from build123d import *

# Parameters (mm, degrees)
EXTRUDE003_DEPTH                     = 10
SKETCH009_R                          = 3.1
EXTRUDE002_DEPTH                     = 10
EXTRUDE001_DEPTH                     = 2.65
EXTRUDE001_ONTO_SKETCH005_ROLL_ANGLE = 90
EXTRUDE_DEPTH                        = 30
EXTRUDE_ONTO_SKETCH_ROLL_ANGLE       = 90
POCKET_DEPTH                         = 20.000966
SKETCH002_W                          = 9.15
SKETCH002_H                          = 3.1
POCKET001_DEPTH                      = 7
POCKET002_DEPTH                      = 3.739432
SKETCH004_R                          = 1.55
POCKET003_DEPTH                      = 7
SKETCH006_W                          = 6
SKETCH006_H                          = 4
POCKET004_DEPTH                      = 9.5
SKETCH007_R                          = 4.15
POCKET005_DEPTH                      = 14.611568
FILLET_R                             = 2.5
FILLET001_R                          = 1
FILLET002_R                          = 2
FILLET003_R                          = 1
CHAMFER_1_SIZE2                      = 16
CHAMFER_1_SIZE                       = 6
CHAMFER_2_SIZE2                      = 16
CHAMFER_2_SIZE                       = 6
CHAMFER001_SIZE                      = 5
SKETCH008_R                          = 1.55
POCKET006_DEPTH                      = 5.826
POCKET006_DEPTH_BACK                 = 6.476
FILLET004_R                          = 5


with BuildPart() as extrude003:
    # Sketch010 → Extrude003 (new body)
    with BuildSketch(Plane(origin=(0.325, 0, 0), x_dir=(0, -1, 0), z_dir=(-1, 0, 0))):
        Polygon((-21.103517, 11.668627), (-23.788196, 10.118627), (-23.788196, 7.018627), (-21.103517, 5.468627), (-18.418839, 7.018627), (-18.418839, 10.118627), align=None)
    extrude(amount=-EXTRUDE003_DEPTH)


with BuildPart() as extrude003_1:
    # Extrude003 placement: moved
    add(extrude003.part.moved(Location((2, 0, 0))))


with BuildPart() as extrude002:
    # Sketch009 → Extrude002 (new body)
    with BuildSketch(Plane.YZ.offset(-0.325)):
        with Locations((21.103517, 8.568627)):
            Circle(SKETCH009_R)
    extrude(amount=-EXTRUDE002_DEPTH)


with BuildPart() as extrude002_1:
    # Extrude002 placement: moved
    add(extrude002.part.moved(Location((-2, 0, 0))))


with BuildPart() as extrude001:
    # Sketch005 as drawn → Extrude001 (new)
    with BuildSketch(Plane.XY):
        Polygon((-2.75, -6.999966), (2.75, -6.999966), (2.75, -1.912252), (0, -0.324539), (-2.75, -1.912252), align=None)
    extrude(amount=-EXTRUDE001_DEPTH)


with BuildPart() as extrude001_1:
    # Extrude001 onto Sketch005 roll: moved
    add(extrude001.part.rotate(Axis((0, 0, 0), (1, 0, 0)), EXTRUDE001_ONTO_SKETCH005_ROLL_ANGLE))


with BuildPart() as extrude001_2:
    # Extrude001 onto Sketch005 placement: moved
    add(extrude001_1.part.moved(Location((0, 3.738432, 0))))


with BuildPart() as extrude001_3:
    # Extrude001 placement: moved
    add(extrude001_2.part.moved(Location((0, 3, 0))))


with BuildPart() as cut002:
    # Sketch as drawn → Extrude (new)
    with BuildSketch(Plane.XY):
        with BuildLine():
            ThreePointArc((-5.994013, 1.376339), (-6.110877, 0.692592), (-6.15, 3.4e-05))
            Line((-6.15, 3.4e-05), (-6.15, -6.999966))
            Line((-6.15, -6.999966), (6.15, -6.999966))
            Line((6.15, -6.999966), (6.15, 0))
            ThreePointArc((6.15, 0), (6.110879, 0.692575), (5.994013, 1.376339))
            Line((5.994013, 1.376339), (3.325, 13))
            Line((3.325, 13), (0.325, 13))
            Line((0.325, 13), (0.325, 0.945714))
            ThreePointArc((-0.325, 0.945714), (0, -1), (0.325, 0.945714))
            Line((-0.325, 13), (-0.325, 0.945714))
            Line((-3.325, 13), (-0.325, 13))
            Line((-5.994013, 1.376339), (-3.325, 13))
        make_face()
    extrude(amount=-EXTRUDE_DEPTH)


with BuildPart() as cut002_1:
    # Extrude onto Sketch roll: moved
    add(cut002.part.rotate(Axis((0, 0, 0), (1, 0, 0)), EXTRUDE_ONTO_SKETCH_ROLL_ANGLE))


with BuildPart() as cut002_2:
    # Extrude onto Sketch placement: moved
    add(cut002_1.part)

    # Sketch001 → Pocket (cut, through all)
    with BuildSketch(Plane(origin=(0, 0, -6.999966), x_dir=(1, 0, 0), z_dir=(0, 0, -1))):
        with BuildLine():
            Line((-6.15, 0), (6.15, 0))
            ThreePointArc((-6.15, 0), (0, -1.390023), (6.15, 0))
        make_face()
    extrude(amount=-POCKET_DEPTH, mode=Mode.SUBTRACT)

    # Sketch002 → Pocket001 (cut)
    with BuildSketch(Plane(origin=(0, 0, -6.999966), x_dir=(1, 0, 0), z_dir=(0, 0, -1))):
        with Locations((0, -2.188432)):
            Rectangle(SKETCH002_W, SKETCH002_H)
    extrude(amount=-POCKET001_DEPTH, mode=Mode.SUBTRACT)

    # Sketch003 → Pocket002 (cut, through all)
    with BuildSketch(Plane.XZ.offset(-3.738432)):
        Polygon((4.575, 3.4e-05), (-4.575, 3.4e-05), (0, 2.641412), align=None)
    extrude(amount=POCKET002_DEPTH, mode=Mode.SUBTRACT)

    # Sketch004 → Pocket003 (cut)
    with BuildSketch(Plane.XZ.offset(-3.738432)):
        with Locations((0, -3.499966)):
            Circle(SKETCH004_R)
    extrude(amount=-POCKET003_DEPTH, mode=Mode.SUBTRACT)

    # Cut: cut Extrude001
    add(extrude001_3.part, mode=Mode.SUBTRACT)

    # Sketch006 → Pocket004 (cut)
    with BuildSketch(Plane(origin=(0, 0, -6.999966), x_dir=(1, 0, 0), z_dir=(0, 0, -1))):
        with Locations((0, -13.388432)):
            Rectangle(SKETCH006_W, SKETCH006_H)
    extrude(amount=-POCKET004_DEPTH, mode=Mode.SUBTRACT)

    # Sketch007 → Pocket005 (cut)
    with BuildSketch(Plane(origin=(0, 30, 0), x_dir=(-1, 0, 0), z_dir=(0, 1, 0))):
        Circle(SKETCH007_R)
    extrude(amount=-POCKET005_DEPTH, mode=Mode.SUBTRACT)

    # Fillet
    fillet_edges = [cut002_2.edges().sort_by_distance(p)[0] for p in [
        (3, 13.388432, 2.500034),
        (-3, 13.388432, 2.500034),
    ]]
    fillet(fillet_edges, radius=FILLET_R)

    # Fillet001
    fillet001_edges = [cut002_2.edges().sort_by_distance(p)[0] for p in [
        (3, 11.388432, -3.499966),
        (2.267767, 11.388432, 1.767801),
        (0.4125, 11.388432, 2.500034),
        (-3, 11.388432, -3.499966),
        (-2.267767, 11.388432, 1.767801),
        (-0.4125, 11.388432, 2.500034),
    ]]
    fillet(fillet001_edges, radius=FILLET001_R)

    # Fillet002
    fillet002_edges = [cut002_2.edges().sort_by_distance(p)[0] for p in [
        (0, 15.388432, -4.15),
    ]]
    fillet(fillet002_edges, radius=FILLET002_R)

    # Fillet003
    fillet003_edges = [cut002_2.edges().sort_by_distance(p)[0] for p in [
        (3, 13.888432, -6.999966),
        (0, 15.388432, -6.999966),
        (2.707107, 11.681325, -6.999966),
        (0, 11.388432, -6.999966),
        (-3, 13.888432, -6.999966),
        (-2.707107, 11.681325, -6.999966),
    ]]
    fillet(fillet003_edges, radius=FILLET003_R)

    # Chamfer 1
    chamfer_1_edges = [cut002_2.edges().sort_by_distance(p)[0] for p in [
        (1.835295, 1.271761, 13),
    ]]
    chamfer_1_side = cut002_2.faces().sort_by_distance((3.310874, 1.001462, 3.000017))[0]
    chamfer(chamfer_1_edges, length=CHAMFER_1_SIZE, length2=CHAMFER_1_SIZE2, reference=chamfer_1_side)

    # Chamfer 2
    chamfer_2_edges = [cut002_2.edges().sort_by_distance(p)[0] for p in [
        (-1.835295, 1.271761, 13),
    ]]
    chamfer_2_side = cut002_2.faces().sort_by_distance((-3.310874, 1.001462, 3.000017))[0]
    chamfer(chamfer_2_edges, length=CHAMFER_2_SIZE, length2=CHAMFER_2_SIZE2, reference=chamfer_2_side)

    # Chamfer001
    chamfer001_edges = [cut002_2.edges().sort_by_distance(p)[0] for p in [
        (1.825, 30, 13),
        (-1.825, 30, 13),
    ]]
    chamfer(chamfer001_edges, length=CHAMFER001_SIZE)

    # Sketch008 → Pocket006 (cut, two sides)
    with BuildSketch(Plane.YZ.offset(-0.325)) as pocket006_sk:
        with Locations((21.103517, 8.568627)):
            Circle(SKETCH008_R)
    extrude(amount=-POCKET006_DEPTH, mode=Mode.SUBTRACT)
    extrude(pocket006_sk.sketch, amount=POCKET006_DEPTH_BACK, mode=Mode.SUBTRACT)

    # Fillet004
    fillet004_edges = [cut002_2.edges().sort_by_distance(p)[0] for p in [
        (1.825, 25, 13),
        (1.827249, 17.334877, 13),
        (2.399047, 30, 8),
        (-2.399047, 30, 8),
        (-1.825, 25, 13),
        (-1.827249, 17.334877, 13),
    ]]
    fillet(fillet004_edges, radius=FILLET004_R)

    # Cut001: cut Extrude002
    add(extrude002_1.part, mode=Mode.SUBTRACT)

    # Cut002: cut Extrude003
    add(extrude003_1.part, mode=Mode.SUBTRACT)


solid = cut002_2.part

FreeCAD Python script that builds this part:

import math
import FreeCAD as App
import Part
import Sketcher

V = App.Vector
Q = App.Units.Quantity


def edges_at(feature, points):
    """Names of the edges that pass closest to the given points."""
    edges = feature.Shape.Edges
    near = lambda p: min(range(len(edges)), key=lambda i: edges[i].distToShape(Part.Vertex(*p))[0])
    return sorted({f"Edge{near(p) + 1}" for p in points})


def add_polygon(sketch, points):
    """Adds a closed chain of lines whose ends are joined by coincident constraints."""
    first, n = sketch.GeometryCount, len(points)
    for a, b in zip(points, points[1:] + points[:1]):
        sketch.addGeometry(Part.LineSegment(App.Vector(*a, 0), App.Vector(*b, 0)), False)
    for i in range(n):
        sketch.addConstraint(Sketcher.Constraint("Coincident", first + i, 2, first + (i + 1) % n, 1))

doc = App.newDocument("Part")
body = doc.addObject("PartDesign::Body", "Body")

# Sketch on YZ plane
sketch1 = doc.addObject("Sketcher::SketchObject", "Sketch")
body.addObject(sketch1)
sketch1.AttachmentSupport = (doc.YZ_Plane, [""])
sketch1.MapMode = "FlatFace"
sketch1.AttachmentOffset = App.Placement(V(0, 0, 0.325), App.Rotation())
add_polygon(sketch1, [(21.1, 11.7), (23.8, 10.1), (23.8, 7), (21.1, 5.5), (18.4, 7), (18.4, 10.1)])  # lines 0-5
sketch1.addConstraint([
    Sketcher.Constraint("Vertical", 1),
    Sketcher.Constraint("Vertical", 4),
    Sketcher.Constraint("Parallel", 0, 3),
    Sketcher.Constraint("Parallel", 2, 5),
    Sketcher.Constraint("Horizontal", 1, 2, 3, 2),
    Sketcher.Constraint("Horizontal", 0, 2, 4, 2),
    Sketcher.Constraint("Vertical", 2, 2, 5, 2),
    Sketcher.Constraint("Angle", 0, Q("-29.999998 deg")),
    Sketcher.Constraint("DistanceY", 1, 2, 1, 1, Q("3.1 mm")),
    Sketcher.Constraint("Distance", 0, Q("3.1 mm")),
    Sketcher.Constraint("DistanceX", -1, 1, 3, 2, Q("18.418839 mm")),
    Sketcher.Constraint("DistanceY", -1, 1, 0, 2, Q("10.118627 mm")),
])
pad1 = doc.addObject("PartDesign::Pad", "Pad")
body.addObject(pad1)
pad1.Profile = sketch1
pad1.Length = 10
body2 = doc.addObject("PartDesign::Body", "Body001")
doc.recompute()

body.Placement = App.Placement(V(2, 0, 0), App.Rotation(V(0, 0, 1), 0))
boolean = doc.addObject("PartDesign::Boolean", "Boolean")
body2.addObject(boolean)
boolean.Type = "Fuse"
boolean.addObjects([body])
body3 = doc.addObject("PartDesign::Body", "Body002")

# Sketch on YZ plane
sketch2 = doc.addObject("Sketcher::SketchObject", "Sketch001")
body3.addObject(sketch2)
sketch2.AttachmentSupport = (doc.getObject("YZ_Plane002"), [""])
sketch2.MapMode = "FlatFace"
sketch2.AttachmentOffset = App.Placement(V(0, 0, -0.325), App.Rotation())
sketch2.addGeometry(Part.Circle(V(21.1, 8.6, 0), V(0, 0, 1), 3.1), False)
sketch2.addConstraint([
    Sketcher.Constraint("Diameter", 0, Q("6.2 mm")),
    Sketcher.Constraint("DistanceX", -1, 1, 0, 3, Q("21.103517 mm")),
    Sketcher.Constraint("DistanceY", -1, 1, 0, 3, Q("8.568627 mm")),
])
pad2 = doc.addObject("PartDesign::Pad", "Pad001")
body3.addObject(pad2)
pad2.Profile = sketch2
pad2.Length = 10
pad2.Reversed = True
body4 = doc.addObject("PartDesign::Body", "Body003")
doc.recompute()

body3.Placement = App.Placement(V(-2, 0, 0), App.Rotation(V(0, 0, 1), 0))
boolean2 = doc.addObject("PartDesign::Boolean", "Boolean001")
body4.addObject(boolean2)
boolean2.Type = "Fuse"
boolean2.addObjects([body3])
body5 = doc.addObject("PartDesign::Body", "Body004")

# Sketch on XY plane
sketch3 = doc.addObject("Sketcher::SketchObject", "Sketch002")
body5.addObject(sketch3)
sketch3.AttachmentSupport = (doc.getObject("XY_Plane004"), [""])
sketch3.MapMode = "FlatFace"
add_polygon(sketch3, [(-2.8, -7), (2.8, -7), (2.8, -1.9), (0, -0.3), (-2.8, -1.9)])  # lines 0-4
sketch3.addConstraint([
    Sketcher.Constraint("Horizontal", 0),
    Sketcher.Constraint("Vertical", 1),
    Sketcher.Constraint("Vertical", 4),
    Sketcher.Constraint("Symmetric", 1, 2, 3, 2, -2),
    Sketcher.Constraint("PointOnObject", 2, 2, -2),
    Sketcher.Constraint("Angle", 2, Q("150.000004 deg")),
    Sketcher.Constraint("DistanceX", 0, 1, 0, 2, Q("5.5 mm")),
    Sketcher.Constraint("DistanceY", 1, 1, 1, 2, Q("5.087714 mm")),
    Sketcher.Constraint("DistanceY", 2, 2, -1, 1, Q("0.324539 mm")),
])
pad3 = doc.addObject("PartDesign::Pad", "Pad002")
body5.addObject(pad3)
pad3.Profile = sketch3
pad3.Length = 2.65
pad3.Reversed = True
body6 = doc.addObject("PartDesign::Body", "Body005")
doc.recompute()

body5.Placement = App.Placement(V(0, 0, 0), App.Rotation(V(1, 0, 0), 90))
boolean3 = doc.addObject("PartDesign::Boolean", "Boolean002")
body6.addObject(boolean3)
boolean3.Type = "Fuse"
boolean3.addObjects([body5])
body7 = doc.addObject("PartDesign::Body", "Body006")
doc.recompute()

body6.Placement = App.Placement(V(0, 3.738432, 0), App.Rotation(V(0, 0, 1), 0))
boolean4 = doc.addObject("PartDesign::Boolean", "Boolean003")
body7.addObject(boolean4)
boolean4.Type = "Fuse"
boolean4.addObjects([body6])
body8 = doc.addObject("PartDesign::Body", "Body007")
doc.recompute()

body7.Placement = App.Placement(V(0, 3, 0), App.Rotation(V(0, 0, 1), 0))
boolean5 = doc.addObject("PartDesign::Boolean", "Boolean004")
body8.addObject(boolean5)
boolean5.Type = "Fuse"
boolean5.addObjects([body7])
body9 = doc.addObject("PartDesign::Body", "Body008")

# Sketch on XY plane
sketch4 = doc.addObject("Sketcher::SketchObject", "Sketch003")
body9.addObject(sketch4)
sketch4.AttachmentSupport = (doc.getObject("XY_Plane008"), [""])
sketch4.MapMode = "FlatFace"
sketch4.addGeometry([
    Part.ArcOfCircle(Part.Circle(V(0, 0, 0), V(0, 0, 1), 6.1), math.radians(167.07), math.radians(180)),  # 0
    Part.LineSegment(V(-6.2, 0, 0), V(-6.2, -7, 0)),  # 1
    Part.LineSegment(V(-6.2, -7, 0), V(6.2, -7, 0)),  # 2
    Part.LineSegment(V(6.2, -7, 0), V(6.2, 0, 0)),  # 3
    Part.ArcOfCircle(Part.Circle(V(0, 0, 0), V(0, 0, 1), 6.1), math.radians(0), math.radians(12.93)),  # 4
    Part.LineSegment(V(6, 1.4, 0), V(3.3, 13, 0)),  # 5
    Part.LineSegment(V(3.3, 13, 0), V(0.3, 13, 0)),  # 6
    Part.LineSegment(V(0.3, 13, 0), V(0.3, 0.9, 0)),  # 7
    Part.ArcOfCircle(Part.Circle(V(0, 0, 0), V(0, 0, 1), 1), math.radians(109), math.radians(431)),  # 8
    Part.LineSegment(V(-0.3, 0.9, 0), V(-0.3, 13, 0)),  # 9
    Part.LineSegment(V(-0.3, 13, 0), V(-3.3, 13, 0)),  # 10
    Part.LineSegment(V(-3.3, 13, 0), V(-6, 1.4, 0)),  # 11
], False)
sketch4.addConstraint([
    Sketcher.Constraint("Coincident", 0, 2, 1, 1),
    Sketcher.Constraint("Coincident", 1, 2, 2, 1),
    Sketcher.Constraint("Coincident", 2, 2, 3, 1),
    Sketcher.Constraint("Tangent", 3, 2, 4, 1),
    Sketcher.Constraint("Tangent", 4, 2, 5, 1),
    Sketcher.Constraint("Coincident", 5, 2, 6, 1),
    Sketcher.Constraint("Coincident", 6, 2, 7, 1),
    Sketcher.Constraint("Coincident", 7, 2, 8, 2),
    Sketcher.Constraint("Coincident", 8, 1, 9, 1),
    Sketcher.Constraint("Coincident", 9, 2, 10, 1),
    Sketcher.Constraint("Coincident", 10, 2, 11, 1),
    Sketcher.Constraint("Tangent", 11, 2, 0, 1),
    Sketcher.Constraint("Vertical", 1),
    Sketcher.Constraint("Horizontal", 2),
    Sketcher.Constraint("Vertical", 3),
    Sketcher.Constraint("Horizontal", 6),
    Sketcher.Constraint("Vertical", 7),
    Sketcher.Constraint("Vertical", 9),
    Sketcher.Constraint("Horizontal", 10),
    Sketcher.Constraint("Coincident", 8, 3, -1, 1),
    Sketcher.Constraint("Symmetric", 6, 2, 9, 2, -2),
    Sketcher.Constraint("Symmetric", 4, 2, 11, 2, -2),
    Sketcher.Constraint("PointOnObject", 0, 3, -1),
    Sketcher.Constraint("PointOnObject", 3, 2, -1),
    Sketcher.Constraint("Equal", 6, 10),
    Sketcher.Constraint("Radius", 8, Q("1 mm")),
    Sketcher.Constraint("DistanceX", 6, 2, 6, 1, Q("3 mm")),
    Sketcher.Constraint("DistanceY", 1, 2, 1, 1, Q("7 mm")),
    Sketcher.Constraint("DistanceX", 2, 1, 2, 2, Q("12.3 mm")),
    Sketcher.Constraint("DistanceY", -1, 1, 5, 2, Q("13 mm")),
    Sketcher.Constraint("Radius", 0, Q("6.149988 mm")),
    Sketcher.Constraint("DistanceX", 8, 1, 7, 2, Q("0.65 mm")),
    Sketcher.Constraint("DistanceY", 3, 1, 3, 2, Q("6.999966 mm")),
])
pad4 = doc.addObject("PartDesign::Pad", "Pad003")
body9.addObject(pad4)
pad4.Profile = sketch4
pad4.Length = 30
pad4.Reversed = True
body10 = doc.addObject("PartDesign::Body", "Body009")
doc.recompute()

body9.Placement = App.Placement(V(0, 0, 0), App.Rotation(V(1, 0, 0), 90))
boolean6 = doc.addObject("PartDesign::Boolean", "Boolean005")
body10.addObject(boolean6)
boolean6.Type = "Fuse"
boolean6.addObjects([body9])

# Sketch on XY plane
sketch5 = doc.addObject("Sketcher::SketchObject", "Sketch004")
body10.addObject(sketch5)
sketch5.AttachmentSupport = (doc.getObject("XY_Plane009"), [""])
sketch5.MapMode = "FlatFace"
sketch5.AttachmentOffset = App.Placement(V(0, 0, -6.999966), App.Rotation())
sketch5.addGeometry([
    Part.LineSegment(V(6, 0, 0), V(-6, 0, 0)),
    Part.ArcOfCircle(Part.Circle(V(0, -13, 0), V(0, 0, 1), 14), math.radians(65), math.radians(115)),
], False)
sketch5.addConstraint([
    Sketcher.Constraint("Coincident", 0, 1, 1, 1),
    Sketcher.Constraint("Coincident", 1, 2, 0, 2),
    Sketcher.Constraint("Horizontal", 0),
    Sketcher.Constraint("Symmetric", 0, 1, 1, 2, -1, 1),
    Sketcher.Constraint("DistanceX", 0, 2, 0, 1, Q("12.3 mm")),
    Sketcher.Constraint("Radius", 1, Q("14.300002 mm")),
])
pocket1 = doc.addObject("PartDesign::Pocket", "Pocket")
body10.addObject(pocket1)
pocket1.Profile = sketch5
pocket1.Type = "ThroughAll"
pocket1.Reversed = True

# Sketch on XY plane
sketch6 = doc.addObject("Sketcher::SketchObject", "Sketch005")
body10.addObject(sketch6)
sketch6.AttachmentSupport = (doc.getObject("XY_Plane009"), [""])
sketch6.MapMode = "FlatFace"
sketch6.AttachmentOffset = App.Placement(V(0, 0, -6.999966), App.Rotation())
add_polygon(sketch6, [(-4.6, 0.6), (-4.6, 3.7), (4.6, 3.7), (4.6, 0.6)])  # lines 0-3
sketch6.addConstraint([
    Sketcher.Constraint("Vertical", 0),
    Sketcher.Constraint("Horizontal", 1),
    Sketcher.Constraint("Vertical", 2),
    Sketcher.Constraint("Horizontal", 3),
    Sketcher.Constraint("DistanceY", 0, 1, 0, 2, Q("3.1 mm")),
    Sketcher.Constraint("DistanceX", 1, 1, 1, 2, Q("9.15 mm")),
    Sketcher.Constraint("DistanceX", 0, 2, -1, 1, Q("4.575 mm")),
    Sketcher.Constraint("DistanceY", -1, 1, 0, 2, Q("3.738432 mm")),
])
pocket2 = doc.addObject("PartDesign::Pocket", "Pocket001")
body10.addObject(pocket2)
pocket2.Profile = sketch6
pocket2.Length = 7
pocket2.Reversed = True

# Sketch on XZ plane
sketch7 = doc.addObject("Sketcher::SketchObject", "Sketch006")
body10.addObject(sketch7)
sketch7.AttachmentSupport = (doc.getObject("XZ_Plane009"), [""])
sketch7.MapMode = "FlatFace"
sketch7.AttachmentOffset = App.Placement(V(0, 0, -3.738432), App.Rotation())
add_polygon(sketch7, [(-5, 0), (5, 0), (0, 3)])  # lines 0-2
sketch7.addConstraint([
    Sketcher.Constraint("Horizontal", 0),
    Sketcher.Constraint("PointOnObject", 1, 2, -2),
    Sketcher.Constraint("Equal", 1, 2),
    Sketcher.Constraint("Angle", 1, Q("149.999995 deg")),
    Sketcher.Constraint("DistanceX", 0, 1, 0, 2, Q("9.15 mm")),
    Sketcher.Constraint("DistanceY", -1, 1, 1, 2, Q("2.641412 mm")),
])
pocket3 = doc.addObject("PartDesign::Pocket", "Pocket002")
body10.addObject(pocket3)
pocket3.Profile = sketch7
pocket3.Type = "ThroughAll"
pocket3.Reversed = True

# Sketch on XZ plane
sketch8 = doc.addObject("Sketcher::SketchObject", "Sketch007")
body10.addObject(sketch8)
sketch8.AttachmentSupport = (doc.getObject("XZ_Plane009"), [""])
sketch8.MapMode = "FlatFace"
sketch8.AttachmentOffset = App.Placement(V(0, 0, -3.738432), App.Rotation())
sketch8.addGeometry(Part.Circle(V(0, -3.5, 0), V(0, 0, 1), 1.6), False)
sketch8.addConstraint([
    Sketcher.Constraint("PointOnObject", 0, 3, -2),
    Sketcher.Constraint("Diameter", 0, Q("3.1 mm")),
    Sketcher.Constraint("DistanceY", 0, 3, -1, 1, Q("3.499966 mm")),
])
pocket4 = doc.addObject("PartDesign::Pocket", "Pocket003")
body10.addObject(pocket4)
pocket4.Profile = sketch8
pocket4.Length = 7
doc.recompute()

boolean7 = doc.addObject("PartDesign::Boolean", "Boolean006")
body10.addObject(boolean7)
boolean7.Type = "Cut"
boolean7.addObjects([body8])

# Sketch on XY plane
sketch9 = doc.addObject("Sketcher::SketchObject", "Sketch008")
body10.addObject(sketch9)
sketch9.AttachmentSupport = (doc.getObject("XY_Plane009"), [""])
sketch9.MapMode = "FlatFace"
sketch9.AttachmentOffset = App.Placement(V(0, 0, -6.999966), App.Rotation())
add_polygon(sketch9, [(-3, 11.4), (-3, 15.4), (3, 15.4), (3, 11.4)])  # lines 0-3
sketch9.addConstraint([
    Sketcher.Constraint("Vertical", 0),
    Sketcher.Constraint("Horizontal", 1),
    Sketcher.Constraint("Vertical", 2),
    Sketcher.Constraint("Horizontal", 3),
    Sketcher.Constraint("DistanceX", 1, 1, 1, 2, Q("6 mm")),
    Sketcher.Constraint("DistanceY", 0, 1, 0, 2, Q("4 mm")),
    Sketcher.Constraint("DistanceX", 0, 2, -1, 1, Q("3 mm")),
    Sketcher.Constraint("DistanceY", -1, 1, 0, 2, Q("15.388432 mm")),
])
pocket5 = doc.addObject("PartDesign::Pocket", "Pocket004")
body10.addObject(pocket5)
pocket5.Profile = sketch9
pocket5.Length = 9.5
pocket5.Reversed = True

# Sketch on XZ plane
sketch10 = doc.addObject("Sketcher::SketchObject", "Sketch009")
body10.addObject(sketch10)
sketch10.AttachmentSupport = (doc.getObject("XZ_Plane009"), [""])
sketch10.MapMode = "FlatFace"
sketch10.AttachmentOffset = App.Placement(V(0, 0, -30), App.Rotation())
sketch10.addGeometry(Part.Circle(V(0, 0, 0), V(0, 0, 1), 4.2), False)
sketch10.addConstraint([
    Sketcher.Constraint("Coincident", 0, 3, -1, 1),
    Sketcher.Constraint("Diameter", 0, Q("8.3 mm")),
])
pocket6 = doc.addObject("PartDesign::Pocket", "Pocket005")
body10.addObject(pocket6)
pocket6.Profile = sketch10
pocket6.Length = 14.611568
pocket6.Reversed = True
doc.recompute()

fillet = doc.addObject("PartDesign::Fillet", "Fillet")
body10.addObject(fillet)
fillet.Base = (pocket6, edges_at(pocket6, [(3, 13.388, 2.5), (-3, 13.388, 2.5)]))
fillet.Radius = 2.5
doc.recompute()

fillet2 = doc.addObject("PartDesign::Fillet", "Fillet001")
body10.addObject(fillet2)
fillet2.Base = (fillet, edges_at(fillet, [
    (3, 11.388, -3.5),
    (2.268, 11.388, 1.768),
    (0.412, 11.388, 2.5),
    (-3, 11.388, -3.5),
    (-2.268, 11.388, 1.768),
    (-0.412, 11.388, 2.5),
]))
fillet2.Radius = 1
doc.recompute()

fillet3 = doc.addObject("PartDesign::Fillet", "Fillet002")
body10.addObject(fillet3)
fillet3.Base = (fillet2, edges_at(fillet2, [(0, 15.388, -4.15)]))
fillet3.Radius = 2
doc.recompute()

fillet4 = doc.addObject("PartDesign::Fillet", "Fillet003")
body10.addObject(fillet4)
fillet4.Base = (fillet3, edges_at(fillet3, [
    (3, 13.888, -7),
    (0, 15.388, -7),
    (2.707, 11.681, -7),
    (0, 11.388, -7),
    (-3, 13.888, -7),
    (-2.707, 11.681, -7),
]))
fillet4.Radius = 1
doc.recompute()

chamfer = doc.addObject("PartDesign::Chamfer", "Chamfer")
body10.addObject(chamfer)
chamfer.Base = (fillet4, edges_at(fillet4, [(1.835, 1.272, 13)]))
chamfer.ChamferType = "Two distances"
chamfer.Size = 6
chamfer.Size2 = 16
doc.recompute()

chamfer2 = doc.addObject("PartDesign::Chamfer", "Chamfer001")
body10.addObject(chamfer2)
chamfer2.Base = (chamfer, edges_at(chamfer, [(-1.835, 1.272, 13)]))
chamfer2.ChamferType = "Two distances"
chamfer2.Size = 6
chamfer2.Size2 = 16
chamfer2.FlipDirection = True
doc.recompute()

chamfer3 = doc.addObject("PartDesign::Chamfer", "Chamfer002")
body10.addObject(chamfer3)
chamfer3.Base = (chamfer2, edges_at(chamfer2, [(1.825, 30, 13), (-1.825, 30, 13)]))
chamfer3.Size = 5

# Sketch on YZ plane
sketch11 = doc.addObject("Sketcher::SketchObject", "Sketch010")
body10.addObject(sketch11)
sketch11.AttachmentSupport = (doc.getObject("YZ_Plane009"), [""])
sketch11.MapMode = "FlatFace"
sketch11.AttachmentOffset = App.Placement(V(0, 0, -0.325), App.Rotation())
sketch11.addGeometry(Part.Circle(V(21.1, 8.6, 0), V(0, 0, 1), 1.6), False)
sketch11.addConstraint([
    Sketcher.Constraint("Diameter", 0, Q("3.1 mm")),
    Sketcher.Constraint("DistanceX", -1, 1, 0, 3, Q("21.103517 mm")),
    Sketcher.Constraint("DistanceY", -1, 1, 0, 3, Q("8.568627 mm")),
])
pocket7 = doc.addObject("PartDesign::Pocket", "Pocket006")
body10.addObject(pocket7)
pocket7.Profile = sketch11
pocket7.Type = "ThroughAll"
pocket7.Midplane = True
doc.recompute()

fillet5 = doc.addObject("PartDesign::Fillet", "Fillet004")
body10.addObject(fillet5)
fillet5.Base = (pocket7, edges_at(pocket7, [
    (1.825, 25, 13),
    (1.827, 17.335, 13),
    (2.399, 30, 8),
    (-2.399, 30, 8),
    (-1.825, 25, 13),
    (-1.827, 17.335, 13),
]))
fillet5.Radius = 5
doc.recompute()

boolean8 = doc.addObject("PartDesign::Boolean", "Boolean007")
body10.addObject(boolean8)
boolean8.Type = "Cut"
boolean8.addObjects([body4])
doc.recompute()

boolean9 = doc.addObject("PartDesign::Boolean", "Boolean008")
body10.addObject(boolean9)
boolean9.Type = "Cut"
boolean9.addObjects([body2])

doc.recompute()
